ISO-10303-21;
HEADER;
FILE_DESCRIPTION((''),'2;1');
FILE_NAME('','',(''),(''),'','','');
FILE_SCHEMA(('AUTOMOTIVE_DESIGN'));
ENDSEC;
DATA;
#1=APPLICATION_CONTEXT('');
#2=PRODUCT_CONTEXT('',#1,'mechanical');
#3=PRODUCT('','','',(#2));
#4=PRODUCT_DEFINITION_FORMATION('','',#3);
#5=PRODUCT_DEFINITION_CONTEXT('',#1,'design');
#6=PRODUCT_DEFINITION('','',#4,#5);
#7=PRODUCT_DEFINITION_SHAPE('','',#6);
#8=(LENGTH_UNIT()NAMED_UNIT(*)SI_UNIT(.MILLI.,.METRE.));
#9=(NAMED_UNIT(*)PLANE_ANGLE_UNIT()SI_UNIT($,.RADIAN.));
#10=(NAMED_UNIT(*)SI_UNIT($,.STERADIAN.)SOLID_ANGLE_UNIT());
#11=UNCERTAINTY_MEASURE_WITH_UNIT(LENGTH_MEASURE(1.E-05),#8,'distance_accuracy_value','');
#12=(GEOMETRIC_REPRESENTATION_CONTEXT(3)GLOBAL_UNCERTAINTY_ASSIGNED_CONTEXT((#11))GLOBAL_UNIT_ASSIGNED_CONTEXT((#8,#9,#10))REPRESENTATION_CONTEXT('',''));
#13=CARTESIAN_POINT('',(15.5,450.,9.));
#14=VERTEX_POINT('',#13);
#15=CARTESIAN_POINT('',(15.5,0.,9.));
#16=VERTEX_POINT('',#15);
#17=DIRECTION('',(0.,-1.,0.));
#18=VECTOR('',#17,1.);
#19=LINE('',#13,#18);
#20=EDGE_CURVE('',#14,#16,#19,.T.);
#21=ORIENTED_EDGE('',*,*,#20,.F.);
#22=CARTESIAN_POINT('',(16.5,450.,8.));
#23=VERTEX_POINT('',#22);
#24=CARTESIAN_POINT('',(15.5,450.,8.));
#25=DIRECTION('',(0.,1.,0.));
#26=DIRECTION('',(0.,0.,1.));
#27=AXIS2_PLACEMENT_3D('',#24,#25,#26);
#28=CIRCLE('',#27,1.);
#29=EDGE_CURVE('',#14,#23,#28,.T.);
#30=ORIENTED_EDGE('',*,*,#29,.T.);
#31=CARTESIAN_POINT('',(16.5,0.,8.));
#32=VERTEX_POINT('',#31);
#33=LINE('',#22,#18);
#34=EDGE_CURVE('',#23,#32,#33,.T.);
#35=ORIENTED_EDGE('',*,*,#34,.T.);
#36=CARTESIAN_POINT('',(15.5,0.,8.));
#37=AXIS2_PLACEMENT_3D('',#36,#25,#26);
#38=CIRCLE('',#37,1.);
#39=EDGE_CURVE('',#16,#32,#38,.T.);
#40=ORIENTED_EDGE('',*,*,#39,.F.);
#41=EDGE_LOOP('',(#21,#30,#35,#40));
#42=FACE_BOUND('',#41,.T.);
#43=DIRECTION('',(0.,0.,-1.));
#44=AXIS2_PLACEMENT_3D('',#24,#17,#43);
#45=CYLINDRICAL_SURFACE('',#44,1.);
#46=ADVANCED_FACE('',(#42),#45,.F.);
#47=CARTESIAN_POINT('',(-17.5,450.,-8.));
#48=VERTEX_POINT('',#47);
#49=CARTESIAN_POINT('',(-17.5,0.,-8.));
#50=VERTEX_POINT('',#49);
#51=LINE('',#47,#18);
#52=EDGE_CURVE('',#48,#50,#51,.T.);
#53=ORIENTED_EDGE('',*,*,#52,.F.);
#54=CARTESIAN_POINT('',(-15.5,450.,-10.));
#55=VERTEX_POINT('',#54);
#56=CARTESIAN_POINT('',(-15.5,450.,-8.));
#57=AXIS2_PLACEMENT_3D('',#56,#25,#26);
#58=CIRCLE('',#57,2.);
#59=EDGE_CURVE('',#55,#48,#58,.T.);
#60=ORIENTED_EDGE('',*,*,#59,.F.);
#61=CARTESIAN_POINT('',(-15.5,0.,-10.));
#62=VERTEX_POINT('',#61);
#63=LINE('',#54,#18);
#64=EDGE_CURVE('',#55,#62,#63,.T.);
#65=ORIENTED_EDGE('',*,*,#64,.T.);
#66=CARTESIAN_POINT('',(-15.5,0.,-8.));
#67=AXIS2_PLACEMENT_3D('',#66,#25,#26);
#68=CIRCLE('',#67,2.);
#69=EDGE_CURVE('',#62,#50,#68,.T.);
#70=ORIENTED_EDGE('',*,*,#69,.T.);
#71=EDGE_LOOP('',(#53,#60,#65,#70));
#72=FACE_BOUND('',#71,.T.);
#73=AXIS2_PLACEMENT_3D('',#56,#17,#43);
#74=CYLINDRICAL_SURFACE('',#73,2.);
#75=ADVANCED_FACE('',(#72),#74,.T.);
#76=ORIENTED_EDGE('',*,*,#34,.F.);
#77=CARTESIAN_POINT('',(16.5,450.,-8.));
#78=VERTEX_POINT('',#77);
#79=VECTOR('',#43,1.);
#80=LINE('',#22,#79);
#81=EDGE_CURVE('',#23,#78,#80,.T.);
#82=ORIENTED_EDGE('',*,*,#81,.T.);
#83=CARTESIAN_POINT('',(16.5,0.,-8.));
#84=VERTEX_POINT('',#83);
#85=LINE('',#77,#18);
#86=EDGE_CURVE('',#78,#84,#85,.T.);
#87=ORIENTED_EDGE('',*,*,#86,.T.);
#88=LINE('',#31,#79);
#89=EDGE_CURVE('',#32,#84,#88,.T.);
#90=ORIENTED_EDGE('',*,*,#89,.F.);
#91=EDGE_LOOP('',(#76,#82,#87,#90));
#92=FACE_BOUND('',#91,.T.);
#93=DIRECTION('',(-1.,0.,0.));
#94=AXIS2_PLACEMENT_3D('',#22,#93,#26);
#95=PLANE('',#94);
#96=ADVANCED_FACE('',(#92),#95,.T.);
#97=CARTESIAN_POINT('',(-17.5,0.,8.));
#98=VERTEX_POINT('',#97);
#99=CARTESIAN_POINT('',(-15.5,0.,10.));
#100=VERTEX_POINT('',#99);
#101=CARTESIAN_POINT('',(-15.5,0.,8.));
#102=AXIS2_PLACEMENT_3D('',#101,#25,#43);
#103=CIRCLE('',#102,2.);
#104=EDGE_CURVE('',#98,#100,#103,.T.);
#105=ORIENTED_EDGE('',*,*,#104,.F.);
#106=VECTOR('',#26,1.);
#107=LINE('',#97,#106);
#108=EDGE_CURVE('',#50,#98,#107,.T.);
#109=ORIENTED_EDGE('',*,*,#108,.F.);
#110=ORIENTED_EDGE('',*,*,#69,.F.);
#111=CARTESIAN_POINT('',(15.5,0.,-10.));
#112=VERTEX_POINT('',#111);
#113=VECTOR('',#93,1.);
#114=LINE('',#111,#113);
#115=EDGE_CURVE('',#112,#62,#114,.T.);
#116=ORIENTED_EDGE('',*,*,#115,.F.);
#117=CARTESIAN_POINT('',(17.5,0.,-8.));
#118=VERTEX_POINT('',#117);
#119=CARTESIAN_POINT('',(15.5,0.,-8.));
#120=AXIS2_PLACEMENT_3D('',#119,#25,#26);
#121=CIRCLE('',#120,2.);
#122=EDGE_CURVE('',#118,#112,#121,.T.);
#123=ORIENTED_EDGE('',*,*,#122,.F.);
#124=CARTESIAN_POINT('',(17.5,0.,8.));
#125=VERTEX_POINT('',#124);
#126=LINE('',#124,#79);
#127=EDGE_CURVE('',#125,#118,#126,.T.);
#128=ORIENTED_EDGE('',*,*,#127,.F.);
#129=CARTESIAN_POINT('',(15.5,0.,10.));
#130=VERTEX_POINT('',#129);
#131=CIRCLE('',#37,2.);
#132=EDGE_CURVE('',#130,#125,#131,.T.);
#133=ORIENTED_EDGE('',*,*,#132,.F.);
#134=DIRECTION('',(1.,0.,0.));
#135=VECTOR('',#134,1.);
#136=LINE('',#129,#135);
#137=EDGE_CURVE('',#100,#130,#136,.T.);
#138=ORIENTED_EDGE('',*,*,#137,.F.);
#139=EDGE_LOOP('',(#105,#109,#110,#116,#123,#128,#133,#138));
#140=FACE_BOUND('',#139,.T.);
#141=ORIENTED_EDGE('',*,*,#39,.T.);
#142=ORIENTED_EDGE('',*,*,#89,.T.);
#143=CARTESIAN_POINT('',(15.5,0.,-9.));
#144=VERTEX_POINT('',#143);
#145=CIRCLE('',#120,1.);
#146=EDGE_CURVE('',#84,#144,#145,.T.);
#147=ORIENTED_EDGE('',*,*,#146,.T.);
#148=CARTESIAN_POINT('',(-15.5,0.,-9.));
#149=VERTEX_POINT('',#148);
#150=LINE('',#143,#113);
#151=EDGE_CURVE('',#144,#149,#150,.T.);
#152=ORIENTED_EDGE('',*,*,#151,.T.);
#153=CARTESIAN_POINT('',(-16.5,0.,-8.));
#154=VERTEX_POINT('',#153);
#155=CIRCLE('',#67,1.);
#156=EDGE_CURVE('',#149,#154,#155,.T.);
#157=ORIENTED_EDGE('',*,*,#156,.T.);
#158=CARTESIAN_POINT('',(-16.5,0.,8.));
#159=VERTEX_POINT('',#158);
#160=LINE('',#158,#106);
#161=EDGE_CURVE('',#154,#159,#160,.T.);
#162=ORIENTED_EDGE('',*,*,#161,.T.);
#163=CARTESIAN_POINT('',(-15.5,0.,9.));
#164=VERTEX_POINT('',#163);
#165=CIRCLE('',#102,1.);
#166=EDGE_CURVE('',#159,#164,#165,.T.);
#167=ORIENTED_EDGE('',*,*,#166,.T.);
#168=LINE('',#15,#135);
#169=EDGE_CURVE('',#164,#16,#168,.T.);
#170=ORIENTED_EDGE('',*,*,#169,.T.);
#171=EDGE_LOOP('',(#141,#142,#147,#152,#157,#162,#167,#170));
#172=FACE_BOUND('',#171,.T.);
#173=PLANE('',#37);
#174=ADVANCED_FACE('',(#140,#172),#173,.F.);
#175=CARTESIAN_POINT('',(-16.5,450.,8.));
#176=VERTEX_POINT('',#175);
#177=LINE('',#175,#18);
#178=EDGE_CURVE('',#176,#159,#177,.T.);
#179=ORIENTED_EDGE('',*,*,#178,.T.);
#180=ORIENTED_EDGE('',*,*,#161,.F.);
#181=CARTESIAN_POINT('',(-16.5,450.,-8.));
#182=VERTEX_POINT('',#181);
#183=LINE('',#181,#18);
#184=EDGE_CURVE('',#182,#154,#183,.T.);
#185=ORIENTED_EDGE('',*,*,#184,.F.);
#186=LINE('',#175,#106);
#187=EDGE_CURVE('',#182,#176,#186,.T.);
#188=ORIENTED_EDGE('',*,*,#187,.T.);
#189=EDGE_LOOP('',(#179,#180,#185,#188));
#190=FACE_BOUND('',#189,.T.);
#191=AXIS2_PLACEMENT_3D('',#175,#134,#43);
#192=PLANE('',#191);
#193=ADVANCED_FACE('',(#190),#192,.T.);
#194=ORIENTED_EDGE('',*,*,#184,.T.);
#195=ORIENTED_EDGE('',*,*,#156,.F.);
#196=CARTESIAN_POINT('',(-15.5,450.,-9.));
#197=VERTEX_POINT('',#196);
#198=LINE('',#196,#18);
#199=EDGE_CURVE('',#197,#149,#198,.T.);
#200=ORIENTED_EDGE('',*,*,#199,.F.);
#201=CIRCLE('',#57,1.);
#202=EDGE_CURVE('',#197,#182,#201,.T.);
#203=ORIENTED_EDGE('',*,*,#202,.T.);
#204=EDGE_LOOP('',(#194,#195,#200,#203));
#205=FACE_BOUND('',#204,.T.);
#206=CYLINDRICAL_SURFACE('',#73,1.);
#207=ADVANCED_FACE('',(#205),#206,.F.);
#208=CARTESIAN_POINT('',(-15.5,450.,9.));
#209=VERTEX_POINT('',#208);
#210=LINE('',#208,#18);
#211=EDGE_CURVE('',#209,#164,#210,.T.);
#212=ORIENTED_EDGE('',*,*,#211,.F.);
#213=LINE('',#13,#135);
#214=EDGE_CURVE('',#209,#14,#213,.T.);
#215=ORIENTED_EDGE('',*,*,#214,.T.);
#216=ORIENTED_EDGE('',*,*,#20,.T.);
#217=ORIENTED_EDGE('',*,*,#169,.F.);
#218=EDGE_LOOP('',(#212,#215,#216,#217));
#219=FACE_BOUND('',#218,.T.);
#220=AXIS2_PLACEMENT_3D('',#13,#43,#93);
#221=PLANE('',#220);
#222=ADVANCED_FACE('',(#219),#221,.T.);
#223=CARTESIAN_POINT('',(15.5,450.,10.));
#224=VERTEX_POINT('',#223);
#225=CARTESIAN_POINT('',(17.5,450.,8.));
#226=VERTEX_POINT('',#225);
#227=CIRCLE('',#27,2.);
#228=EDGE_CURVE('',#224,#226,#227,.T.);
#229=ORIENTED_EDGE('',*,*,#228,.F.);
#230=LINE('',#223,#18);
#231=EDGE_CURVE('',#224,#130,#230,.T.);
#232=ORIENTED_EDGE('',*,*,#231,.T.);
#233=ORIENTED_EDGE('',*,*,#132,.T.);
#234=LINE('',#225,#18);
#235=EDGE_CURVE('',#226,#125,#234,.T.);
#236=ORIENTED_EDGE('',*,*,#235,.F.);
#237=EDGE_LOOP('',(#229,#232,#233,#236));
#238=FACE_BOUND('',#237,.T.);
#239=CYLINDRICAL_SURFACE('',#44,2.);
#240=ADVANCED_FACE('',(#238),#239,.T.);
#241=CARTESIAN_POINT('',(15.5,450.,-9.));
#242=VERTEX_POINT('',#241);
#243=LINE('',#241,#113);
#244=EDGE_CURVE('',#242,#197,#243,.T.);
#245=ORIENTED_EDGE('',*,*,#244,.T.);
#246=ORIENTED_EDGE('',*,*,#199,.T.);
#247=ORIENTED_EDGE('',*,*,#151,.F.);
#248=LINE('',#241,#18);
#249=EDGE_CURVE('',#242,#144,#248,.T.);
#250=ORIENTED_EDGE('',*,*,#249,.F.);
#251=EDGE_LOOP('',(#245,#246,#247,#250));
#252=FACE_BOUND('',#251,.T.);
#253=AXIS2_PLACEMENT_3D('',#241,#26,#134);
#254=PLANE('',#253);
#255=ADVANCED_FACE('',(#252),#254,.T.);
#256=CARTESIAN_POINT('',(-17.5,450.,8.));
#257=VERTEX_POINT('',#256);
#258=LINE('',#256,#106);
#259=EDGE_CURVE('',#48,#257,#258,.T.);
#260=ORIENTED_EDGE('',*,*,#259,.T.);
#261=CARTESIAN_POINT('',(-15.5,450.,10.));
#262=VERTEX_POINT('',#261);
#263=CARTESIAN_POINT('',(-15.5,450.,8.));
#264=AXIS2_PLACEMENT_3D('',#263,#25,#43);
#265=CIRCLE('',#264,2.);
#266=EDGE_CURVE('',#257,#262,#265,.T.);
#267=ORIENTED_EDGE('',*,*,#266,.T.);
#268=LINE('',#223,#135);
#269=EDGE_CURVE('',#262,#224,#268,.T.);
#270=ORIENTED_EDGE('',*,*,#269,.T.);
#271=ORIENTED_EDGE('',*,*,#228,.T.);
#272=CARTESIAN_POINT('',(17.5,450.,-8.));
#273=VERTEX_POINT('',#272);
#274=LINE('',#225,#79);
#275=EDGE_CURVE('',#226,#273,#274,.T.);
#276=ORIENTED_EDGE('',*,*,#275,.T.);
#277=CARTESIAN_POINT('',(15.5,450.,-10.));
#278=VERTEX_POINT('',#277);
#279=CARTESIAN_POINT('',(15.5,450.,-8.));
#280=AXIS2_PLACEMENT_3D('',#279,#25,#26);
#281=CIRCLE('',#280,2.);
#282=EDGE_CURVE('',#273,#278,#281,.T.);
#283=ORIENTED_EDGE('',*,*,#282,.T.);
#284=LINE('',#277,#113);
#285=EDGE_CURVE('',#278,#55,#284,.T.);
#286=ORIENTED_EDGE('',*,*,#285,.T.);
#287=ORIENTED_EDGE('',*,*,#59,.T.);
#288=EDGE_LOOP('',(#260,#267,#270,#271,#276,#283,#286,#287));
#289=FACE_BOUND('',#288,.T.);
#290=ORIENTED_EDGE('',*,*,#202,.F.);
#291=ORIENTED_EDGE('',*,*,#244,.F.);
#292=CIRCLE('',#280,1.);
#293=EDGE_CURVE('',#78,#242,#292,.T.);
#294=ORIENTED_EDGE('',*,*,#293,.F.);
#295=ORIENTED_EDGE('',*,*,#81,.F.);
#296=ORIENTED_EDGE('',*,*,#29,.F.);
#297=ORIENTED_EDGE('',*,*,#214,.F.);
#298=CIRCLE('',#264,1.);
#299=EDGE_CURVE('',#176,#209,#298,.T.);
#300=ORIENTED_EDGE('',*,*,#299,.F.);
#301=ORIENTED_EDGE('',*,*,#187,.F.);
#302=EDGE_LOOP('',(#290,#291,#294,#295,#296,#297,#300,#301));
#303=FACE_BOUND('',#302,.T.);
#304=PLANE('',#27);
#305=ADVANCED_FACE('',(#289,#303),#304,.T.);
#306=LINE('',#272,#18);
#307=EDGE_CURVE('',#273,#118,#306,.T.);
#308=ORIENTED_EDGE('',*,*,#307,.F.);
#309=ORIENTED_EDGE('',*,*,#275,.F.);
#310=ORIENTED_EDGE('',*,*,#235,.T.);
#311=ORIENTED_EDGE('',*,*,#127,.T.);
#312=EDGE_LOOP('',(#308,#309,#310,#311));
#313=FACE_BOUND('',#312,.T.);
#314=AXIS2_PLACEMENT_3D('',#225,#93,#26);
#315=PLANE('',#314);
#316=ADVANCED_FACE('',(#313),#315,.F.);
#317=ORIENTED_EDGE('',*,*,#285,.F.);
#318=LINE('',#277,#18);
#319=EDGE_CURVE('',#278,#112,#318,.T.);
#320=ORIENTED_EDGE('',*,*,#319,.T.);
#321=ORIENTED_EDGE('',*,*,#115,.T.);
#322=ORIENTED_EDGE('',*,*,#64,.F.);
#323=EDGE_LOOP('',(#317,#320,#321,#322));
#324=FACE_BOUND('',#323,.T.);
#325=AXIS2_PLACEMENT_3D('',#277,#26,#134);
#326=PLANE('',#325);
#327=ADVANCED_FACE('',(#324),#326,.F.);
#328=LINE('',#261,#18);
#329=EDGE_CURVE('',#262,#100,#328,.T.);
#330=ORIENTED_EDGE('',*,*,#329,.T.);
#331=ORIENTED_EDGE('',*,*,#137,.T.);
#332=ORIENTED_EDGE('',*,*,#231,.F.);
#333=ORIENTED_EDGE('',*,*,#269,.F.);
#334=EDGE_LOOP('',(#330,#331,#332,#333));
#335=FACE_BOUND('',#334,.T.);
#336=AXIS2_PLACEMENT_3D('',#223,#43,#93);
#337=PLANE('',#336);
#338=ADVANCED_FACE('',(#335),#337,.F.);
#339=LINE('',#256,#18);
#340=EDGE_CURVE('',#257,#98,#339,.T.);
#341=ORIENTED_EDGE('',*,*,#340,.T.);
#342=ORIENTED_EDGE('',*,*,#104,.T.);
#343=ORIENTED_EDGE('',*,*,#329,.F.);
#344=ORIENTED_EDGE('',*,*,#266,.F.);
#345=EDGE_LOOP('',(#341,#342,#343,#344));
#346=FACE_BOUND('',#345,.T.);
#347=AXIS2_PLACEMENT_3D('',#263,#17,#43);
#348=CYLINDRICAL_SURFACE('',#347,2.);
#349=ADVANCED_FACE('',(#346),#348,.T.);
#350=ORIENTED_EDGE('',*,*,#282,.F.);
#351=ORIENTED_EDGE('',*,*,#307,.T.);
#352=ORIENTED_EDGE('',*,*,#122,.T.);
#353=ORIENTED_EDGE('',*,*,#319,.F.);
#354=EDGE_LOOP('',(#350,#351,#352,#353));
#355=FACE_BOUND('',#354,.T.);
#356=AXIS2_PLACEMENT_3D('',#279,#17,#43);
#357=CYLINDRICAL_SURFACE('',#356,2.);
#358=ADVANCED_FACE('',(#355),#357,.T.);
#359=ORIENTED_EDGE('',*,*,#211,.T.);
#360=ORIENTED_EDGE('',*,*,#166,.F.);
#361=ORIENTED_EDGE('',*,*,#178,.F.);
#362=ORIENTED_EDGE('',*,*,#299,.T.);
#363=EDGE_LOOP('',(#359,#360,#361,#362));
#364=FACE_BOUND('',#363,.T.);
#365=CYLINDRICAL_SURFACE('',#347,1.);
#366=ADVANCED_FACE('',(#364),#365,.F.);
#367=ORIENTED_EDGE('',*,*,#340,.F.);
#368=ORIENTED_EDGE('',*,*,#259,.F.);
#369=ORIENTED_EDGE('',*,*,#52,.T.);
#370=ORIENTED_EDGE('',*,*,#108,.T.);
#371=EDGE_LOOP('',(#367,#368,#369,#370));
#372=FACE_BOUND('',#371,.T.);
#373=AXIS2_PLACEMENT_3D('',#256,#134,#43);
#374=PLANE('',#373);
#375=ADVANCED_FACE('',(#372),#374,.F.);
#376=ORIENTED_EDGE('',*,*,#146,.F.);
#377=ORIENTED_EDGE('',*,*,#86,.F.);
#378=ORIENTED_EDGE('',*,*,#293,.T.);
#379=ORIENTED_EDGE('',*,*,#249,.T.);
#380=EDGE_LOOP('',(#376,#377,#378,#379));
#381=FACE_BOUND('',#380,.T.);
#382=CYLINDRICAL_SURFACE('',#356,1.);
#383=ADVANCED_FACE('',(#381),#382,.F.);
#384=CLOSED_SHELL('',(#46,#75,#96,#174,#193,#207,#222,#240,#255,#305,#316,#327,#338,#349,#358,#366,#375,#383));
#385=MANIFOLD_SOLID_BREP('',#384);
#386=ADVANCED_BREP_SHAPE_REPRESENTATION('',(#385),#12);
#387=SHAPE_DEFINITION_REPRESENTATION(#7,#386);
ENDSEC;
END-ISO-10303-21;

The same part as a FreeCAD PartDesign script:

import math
import FreeCAD as App
import Part
import Sketcher
from FreeCAD import Vector

doc = App.newDocument("Part")
body = doc.addObject("PartDesign::Body", "Body")

# Sketch on XZ plane
sketch1 = body.newObject("Sketcher::SketchObject", "Sketch")
sketch1.AttachmentSupport = (doc.getObject("XZ_Plane"), [""])
sketch1.MapMode = "FlatFace"
sketch1.addGeometry([
    Part.LineSegment(Vector(-15.5, 10, 0), Vector(15.5, 10, 0)),  # 0
    Part.ArcOfCircle(Part.Circle(Vector(15.5, 8, 0), Vector(0, 0, 1), 2), math.radians(0), math.radians(90)),  # 1
    Part.LineSegment(Vector(17.5, 8, 0), Vector(17.5, -8, 0)),  # 2
    Part.ArcOfCircle(Part.Circle(Vector(15.5, -8, 0), Vector(0, 0, 1), 2), math.radians(-90), math.radians(0)),  # 3
    Part.LineSegment(Vector(15.5, -10, 0), Vector(-15.5, -10, 0)),  # 4
    Part.ArcOfCircle(Part.Circle(Vector(-15.5, -8, 0), Vector(0, 0, 1), 2), math.radians(-180), math.radians(-90)),  # 5
    Part.LineSegment(Vector(-17.5, -8, 0), Vector(-17.5, 8, 0)),  # 6
    Part.ArcOfCircle(Part.Circle(Vector(-15.5, 8, 0), Vector(0, 0, 1), 2), math.radians(90), math.radians(180)),  # 7
    Part.LineSegment(Vector(15.5, 9, 0), Vector(-15.5, 9, 0)),  # 8
    Part.ArcOfCircle(Part.Circle(Vector(-15.5, 8, 0), Vector(0, 0, 1), 1), math.radians(90), math.radians(180)),  # 9
    Part.LineSegment(Vector(-16.5, 8, 0), Vector(-16.5, -8, 0)),  # 10
    Part.ArcOfCircle(Part.Circle(Vector(-15.5, -8, 0), Vector(0, 0, 1), 1), math.radians(-180), math.radians(-90)),  # 11
    Part.LineSegment(Vector(-15.5, -9, 0), Vector(15.5, -9, 0)),  # 12
    Part.ArcOfCircle(Part.Circle(Vector(15.5, -8, 0), Vector(0, 0, 1), 1), math.radians(-90), math.radians(0)),  # 13
    Part.LineSegment(Vector(16.5, -8, 0), Vector(16.5, 8, 0)),  # 14
    Part.ArcOfCircle(Part.Circle(Vector(15.5, 8, 0), Vector(0, 0, 1), 1), math.radians(0), math.radians(90)),  # 15
], False)
sketch1.addConstraint([
    Sketcher.Constraint("Tangent", 0, 2, 1, 2),
    Sketcher.Constraint("Tangent", 1, 1, 2, 1),
    Sketcher.Constraint("Tangent", 2, 2, 3, 2),
    Sketcher.Constraint("Tangent", 3, 1, 4, 1),
    Sketcher.Constraint("Tangent", 4, 2, 5, 2),
    Sketcher.Constraint("Tangent", 5, 1, 6, 1),
    Sketcher.Constraint("Tangent", 6, 2, 7, 2),
    Sketcher.Constraint("Tangent", 7, 1, 0, 1),
    Sketcher.Constraint("Tangent", 8, 2, 9, 1),
    Sketcher.Constraint("Tangent", 9, 2, 10, 1),
    Sketcher.Constraint("Tangent", 10, 2, 11, 1),
    Sketcher.Constraint("Tangent", 11, 2, 12, 1),
    Sketcher.Constraint("Tangent", 12, 2, 13, 1),
    Sketcher.Constraint("Tangent", 13, 2, 14, 1),
    Sketcher.Constraint("Tangent", 14, 2, 15, 1),
    Sketcher.Constraint("Tangent", 15, 2, 8, 1),
    Sketcher.Constraint("Horizontal", 0),
    Sketcher.Constraint("Vertical", 2),
    Sketcher.Constraint("Horizontal", 4),
    Sketcher.Constraint("Vertical", 6),
    Sketcher.Constraint("Horizontal", 8),
    Sketcher.Constraint("Vertical", 10),
    Sketcher.Constraint("Horizontal", 12),
    Sketcher.Constraint("Vertical", 14),
    Sketcher.Constraint("Coincident", 9, 3, 7, 3),
    Sketcher.Constraint("Coincident", 11, 3, 5, 3),
    Sketcher.Constraint("Coincident", 13, 3, 3, 3),
    Sketcher.Constraint("Equal", 1, 3),
    Sketcher.Constraint("Equal", 3, 5),
    Sketcher.Constraint("Equal", 5, 7),
    Sketcher.Constraint("Equal", 13, 15),
    Sketcher.Constraint("Symmetric", 1, 3, 5, 3, -1, 1),
    Sketcher.Constraint("Radius", 1, 2.0),
    Sketcher.Constraint("Radius", 9, 1.0),
    Sketcher.Constraint("DistanceX", 0, 1, 0, 2, 31.0),
    Sketcher.Constraint("DistanceY", 2, 2, 2, 1, 16.0),
])
pad1 = body.newObject("PartDesign::Pad", "Pad")
pad1.Profile = sketch1
pad1.Length = 450
pad1.Reversed = True

doc.recompute()
